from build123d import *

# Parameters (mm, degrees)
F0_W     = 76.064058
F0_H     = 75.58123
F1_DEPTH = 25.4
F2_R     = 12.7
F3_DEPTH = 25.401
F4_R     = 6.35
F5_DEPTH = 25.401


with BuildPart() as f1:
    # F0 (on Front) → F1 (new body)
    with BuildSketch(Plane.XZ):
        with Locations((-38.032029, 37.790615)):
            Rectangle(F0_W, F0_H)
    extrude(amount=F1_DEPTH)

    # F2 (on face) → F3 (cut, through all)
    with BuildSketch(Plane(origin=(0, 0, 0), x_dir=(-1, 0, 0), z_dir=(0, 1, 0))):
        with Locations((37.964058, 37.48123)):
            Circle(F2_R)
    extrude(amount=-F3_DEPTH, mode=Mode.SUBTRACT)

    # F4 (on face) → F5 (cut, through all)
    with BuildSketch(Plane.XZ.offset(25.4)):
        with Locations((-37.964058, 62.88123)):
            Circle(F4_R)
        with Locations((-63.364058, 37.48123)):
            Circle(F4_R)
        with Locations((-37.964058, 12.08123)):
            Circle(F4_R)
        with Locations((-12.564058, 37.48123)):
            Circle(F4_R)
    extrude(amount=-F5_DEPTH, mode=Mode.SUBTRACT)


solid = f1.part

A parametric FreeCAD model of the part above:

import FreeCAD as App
import Part
import Sketcher

V = App.Vector
Q = App.Units.Quantity

doc = App.newDocument("Part")
body = doc.addObject("PartDesign::Body", "Body")

sketch1 = body.newObject("Sketcher::SketchObject", "Sketch")
sketch1.AttachmentSupport = (doc.getObject("XZ_Plane"), [""])
sketch1.MapMode = "FlatFace"
sketch1.addGeometry([
    Part.LineSegment(V(-76, 76, 0), V(-76, 0, 0)),
    Part.LineSegment(V(-76, 0, 0), V(0, 0, 0)),
    Part.LineSegment(V(0, 0, 0), V(0, 76, 0)),
    Part.LineSegment(V(0, 76, 0), V(-76, 76, 0)),
], False)
sketch1.addConstraint([
    Sketcher.Constraint("Coincident", 0, 2, 1, 1),
    Sketcher.Constraint("Coincident", 1, 2, 2, 1),
    Sketcher.Constraint("Coincident", 2, 2, 3, 1),
    Sketcher.Constraint("Coincident", 3, 2, 0, 1),
    Sketcher.Constraint("Vertical", 0),
    Sketcher.Constraint("Horizontal", 1),
    Sketcher.Constraint("Vertical", 2),
    Sketcher.Constraint("Horizontal", 3),
    Sketcher.Constraint("Coincident", 1, 2, -1, 1),
    Sketcher.Constraint("DistanceX", 1, 1, 1, 2, 76.064058),
    Sketcher.Constraint("DistanceY", 0, 2, 0, 1, 75.58123),
])
pad1 = body.newObject("PartDesign::Pad", "Pad")
pad1.Profile = sketch1
pad1.Length = Q("1 in")

sketch2 = body.newObject("Sketcher::SketchObject", "Sketch001")
sketch2.AttachmentSupport = (doc.getObject("XZ_Plane"), [""])
sketch2.MapMode = "FlatFace"
sketch2.addGeometry(Part.Circle(V(-38, 37, 0), V(0, 0, 1), 13), False)
sketch2.addConstraint([
    Sketcher.Constraint("Diameter", 0, Q("1 in")),
    Sketcher.Constraint("DistanceY", -1, 1, 0, 3, 37.48123),
    Sketcher.Constraint("DistanceX", 0, 3, -1, 1, 37.964058),
])
pocket1 = body.newObject("PartDesign::Pocket", "Pocket")
pocket1.Profile = sketch2
pocket1.Type = "ThroughAll"
pocket1.Reversed = True

sketch3 = body.newObject("Sketcher::SketchObject", "Sketch002")
sketch3.AttachmentSupport = (doc.getObject("XZ_Plane"), [""])
sketch3.MapMode = "FlatFace"
sketch3.AttachmentOffset = App.Placement(V(0, 0, 1 * 25.4), App.Rotation())
sketch3.addGeometry([
    Part.Circle(V(-38, 63, 0), V(0, 0, 1), 6),
    Part.Circle(V(-63, 37, 0), V(0, 0, 1), 6),
    Part.Circle(V(-38, 12, 0), V(0, 0, 1), 6),
    Part.Circle(V(-13, 37, 0), V(0, 0, 1), 6),
], False)
sketch3.addConstraint([
    Sketcher.Constraint("Equal", 0, 1),
    Sketcher.Constraint("Equal", 1, 2),
    Sketcher.Constraint("Equal", 2, 3),
    Sketcher.Constraint("Horizontal", 1, 3, 3, 3),
    Sketcher.Constraint("Vertical", 0, 3, 2, 3),
    Sketcher.Constraint("Diameter", 0, Q("0.5 in")),
    Sketcher.Constraint("DistanceX", 1, 3, 0, 3, Q("1 in")),
    Sketcher.Constraint("DistanceY", 1, 3, 0, 3, Q("1 in")),
    Sketcher.Constraint("DistanceY", 2, 3, 1, 3, Q("1 in")),
    Sketcher.Constraint("DistanceX", 2, 3, 3, 3, Q("1 in")),
    Sketcher.Constraint("DistanceY", -1, 1, 0, 3, 62.88123),
    Sketcher.Constraint("DistanceX", 0, 3, -1, 1, 37.964058),
])
pocket2 = body.newObject("PartDesign::Pocket", "Pocket001")
pocket2.Profile = sketch3
pocket2.Type = "ThroughAll"

doc.recompute()
